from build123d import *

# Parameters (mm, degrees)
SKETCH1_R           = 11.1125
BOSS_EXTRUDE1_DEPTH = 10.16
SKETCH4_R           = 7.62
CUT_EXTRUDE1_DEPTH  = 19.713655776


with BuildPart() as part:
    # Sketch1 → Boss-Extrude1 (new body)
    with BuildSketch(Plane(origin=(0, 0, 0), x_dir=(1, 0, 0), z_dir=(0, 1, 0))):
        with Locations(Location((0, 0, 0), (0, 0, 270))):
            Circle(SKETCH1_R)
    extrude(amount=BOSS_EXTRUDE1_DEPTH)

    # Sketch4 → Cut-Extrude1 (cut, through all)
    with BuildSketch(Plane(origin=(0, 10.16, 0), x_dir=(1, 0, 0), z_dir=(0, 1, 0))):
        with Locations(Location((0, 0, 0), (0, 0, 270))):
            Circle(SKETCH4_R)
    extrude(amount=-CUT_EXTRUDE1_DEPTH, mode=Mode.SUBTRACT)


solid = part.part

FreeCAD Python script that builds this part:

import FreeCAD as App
import Part
import Sketcher
Q = App.Units.Quantity

doc = App.newDocument("Part")
body = doc.addObject("PartDesign::Body", "Body")

sketch1 = doc.addObject("Sketcher::SketchObject", "Sketch")
body.addObject(sketch1)
sketch1.AttachmentSupport = (doc.XZ_Plane, [""])
sketch1.MapMode = "FlatFace"
sketch1.addGeometry(Part.Circle(App.Vector(0, 0, 0), App.Vector(0, 0, 1), 11), False)
sketch1.addConstraint([
    Sketcher.Constraint("Coincident", 0, 3, -1, 1),
    Sketcher.Constraint("Diameter", 0, Q("0.875 in")),
])
pad1 = doc.addObject("PartDesign::Pad", "Pad")
body.addObject(pad1)
pad1.Profile = sketch1
pad1.Length = Q("0.4 in")
pad1.Reversed = True

sketch2 = doc.addObject("Sketcher::SketchObject", "Sketch001")
body.addObject(sketch2)
sketch2.AttachmentSupport = (doc.XZ_Plane, [""])
sketch2.MapMode = "FlatFace"
sketch2.AttachmentOffset = App.Placement(App.Vector(0, 0, -0.4 * 25.4), App.Rotation())
sketch2.addGeometry(Part.Circle(App.Vector(0, 0, 0), App.Vector(0, 0, 1), 8), False)
sketch2.addConstraint([
    Sketcher.Constraint("Coincident", 0, 3, -1, 1),
    Sketcher.Constraint("Diameter", 0, Q("0.6 in")),
])
pocket1 = doc.addObject("PartDesign::Pocket", "Pocket")
body.addObject(pocket1)
pocket1.Profile = sketch2
pocket1.Type = "ThroughAll"
pocket1.Reversed = True

doc.recompute()
